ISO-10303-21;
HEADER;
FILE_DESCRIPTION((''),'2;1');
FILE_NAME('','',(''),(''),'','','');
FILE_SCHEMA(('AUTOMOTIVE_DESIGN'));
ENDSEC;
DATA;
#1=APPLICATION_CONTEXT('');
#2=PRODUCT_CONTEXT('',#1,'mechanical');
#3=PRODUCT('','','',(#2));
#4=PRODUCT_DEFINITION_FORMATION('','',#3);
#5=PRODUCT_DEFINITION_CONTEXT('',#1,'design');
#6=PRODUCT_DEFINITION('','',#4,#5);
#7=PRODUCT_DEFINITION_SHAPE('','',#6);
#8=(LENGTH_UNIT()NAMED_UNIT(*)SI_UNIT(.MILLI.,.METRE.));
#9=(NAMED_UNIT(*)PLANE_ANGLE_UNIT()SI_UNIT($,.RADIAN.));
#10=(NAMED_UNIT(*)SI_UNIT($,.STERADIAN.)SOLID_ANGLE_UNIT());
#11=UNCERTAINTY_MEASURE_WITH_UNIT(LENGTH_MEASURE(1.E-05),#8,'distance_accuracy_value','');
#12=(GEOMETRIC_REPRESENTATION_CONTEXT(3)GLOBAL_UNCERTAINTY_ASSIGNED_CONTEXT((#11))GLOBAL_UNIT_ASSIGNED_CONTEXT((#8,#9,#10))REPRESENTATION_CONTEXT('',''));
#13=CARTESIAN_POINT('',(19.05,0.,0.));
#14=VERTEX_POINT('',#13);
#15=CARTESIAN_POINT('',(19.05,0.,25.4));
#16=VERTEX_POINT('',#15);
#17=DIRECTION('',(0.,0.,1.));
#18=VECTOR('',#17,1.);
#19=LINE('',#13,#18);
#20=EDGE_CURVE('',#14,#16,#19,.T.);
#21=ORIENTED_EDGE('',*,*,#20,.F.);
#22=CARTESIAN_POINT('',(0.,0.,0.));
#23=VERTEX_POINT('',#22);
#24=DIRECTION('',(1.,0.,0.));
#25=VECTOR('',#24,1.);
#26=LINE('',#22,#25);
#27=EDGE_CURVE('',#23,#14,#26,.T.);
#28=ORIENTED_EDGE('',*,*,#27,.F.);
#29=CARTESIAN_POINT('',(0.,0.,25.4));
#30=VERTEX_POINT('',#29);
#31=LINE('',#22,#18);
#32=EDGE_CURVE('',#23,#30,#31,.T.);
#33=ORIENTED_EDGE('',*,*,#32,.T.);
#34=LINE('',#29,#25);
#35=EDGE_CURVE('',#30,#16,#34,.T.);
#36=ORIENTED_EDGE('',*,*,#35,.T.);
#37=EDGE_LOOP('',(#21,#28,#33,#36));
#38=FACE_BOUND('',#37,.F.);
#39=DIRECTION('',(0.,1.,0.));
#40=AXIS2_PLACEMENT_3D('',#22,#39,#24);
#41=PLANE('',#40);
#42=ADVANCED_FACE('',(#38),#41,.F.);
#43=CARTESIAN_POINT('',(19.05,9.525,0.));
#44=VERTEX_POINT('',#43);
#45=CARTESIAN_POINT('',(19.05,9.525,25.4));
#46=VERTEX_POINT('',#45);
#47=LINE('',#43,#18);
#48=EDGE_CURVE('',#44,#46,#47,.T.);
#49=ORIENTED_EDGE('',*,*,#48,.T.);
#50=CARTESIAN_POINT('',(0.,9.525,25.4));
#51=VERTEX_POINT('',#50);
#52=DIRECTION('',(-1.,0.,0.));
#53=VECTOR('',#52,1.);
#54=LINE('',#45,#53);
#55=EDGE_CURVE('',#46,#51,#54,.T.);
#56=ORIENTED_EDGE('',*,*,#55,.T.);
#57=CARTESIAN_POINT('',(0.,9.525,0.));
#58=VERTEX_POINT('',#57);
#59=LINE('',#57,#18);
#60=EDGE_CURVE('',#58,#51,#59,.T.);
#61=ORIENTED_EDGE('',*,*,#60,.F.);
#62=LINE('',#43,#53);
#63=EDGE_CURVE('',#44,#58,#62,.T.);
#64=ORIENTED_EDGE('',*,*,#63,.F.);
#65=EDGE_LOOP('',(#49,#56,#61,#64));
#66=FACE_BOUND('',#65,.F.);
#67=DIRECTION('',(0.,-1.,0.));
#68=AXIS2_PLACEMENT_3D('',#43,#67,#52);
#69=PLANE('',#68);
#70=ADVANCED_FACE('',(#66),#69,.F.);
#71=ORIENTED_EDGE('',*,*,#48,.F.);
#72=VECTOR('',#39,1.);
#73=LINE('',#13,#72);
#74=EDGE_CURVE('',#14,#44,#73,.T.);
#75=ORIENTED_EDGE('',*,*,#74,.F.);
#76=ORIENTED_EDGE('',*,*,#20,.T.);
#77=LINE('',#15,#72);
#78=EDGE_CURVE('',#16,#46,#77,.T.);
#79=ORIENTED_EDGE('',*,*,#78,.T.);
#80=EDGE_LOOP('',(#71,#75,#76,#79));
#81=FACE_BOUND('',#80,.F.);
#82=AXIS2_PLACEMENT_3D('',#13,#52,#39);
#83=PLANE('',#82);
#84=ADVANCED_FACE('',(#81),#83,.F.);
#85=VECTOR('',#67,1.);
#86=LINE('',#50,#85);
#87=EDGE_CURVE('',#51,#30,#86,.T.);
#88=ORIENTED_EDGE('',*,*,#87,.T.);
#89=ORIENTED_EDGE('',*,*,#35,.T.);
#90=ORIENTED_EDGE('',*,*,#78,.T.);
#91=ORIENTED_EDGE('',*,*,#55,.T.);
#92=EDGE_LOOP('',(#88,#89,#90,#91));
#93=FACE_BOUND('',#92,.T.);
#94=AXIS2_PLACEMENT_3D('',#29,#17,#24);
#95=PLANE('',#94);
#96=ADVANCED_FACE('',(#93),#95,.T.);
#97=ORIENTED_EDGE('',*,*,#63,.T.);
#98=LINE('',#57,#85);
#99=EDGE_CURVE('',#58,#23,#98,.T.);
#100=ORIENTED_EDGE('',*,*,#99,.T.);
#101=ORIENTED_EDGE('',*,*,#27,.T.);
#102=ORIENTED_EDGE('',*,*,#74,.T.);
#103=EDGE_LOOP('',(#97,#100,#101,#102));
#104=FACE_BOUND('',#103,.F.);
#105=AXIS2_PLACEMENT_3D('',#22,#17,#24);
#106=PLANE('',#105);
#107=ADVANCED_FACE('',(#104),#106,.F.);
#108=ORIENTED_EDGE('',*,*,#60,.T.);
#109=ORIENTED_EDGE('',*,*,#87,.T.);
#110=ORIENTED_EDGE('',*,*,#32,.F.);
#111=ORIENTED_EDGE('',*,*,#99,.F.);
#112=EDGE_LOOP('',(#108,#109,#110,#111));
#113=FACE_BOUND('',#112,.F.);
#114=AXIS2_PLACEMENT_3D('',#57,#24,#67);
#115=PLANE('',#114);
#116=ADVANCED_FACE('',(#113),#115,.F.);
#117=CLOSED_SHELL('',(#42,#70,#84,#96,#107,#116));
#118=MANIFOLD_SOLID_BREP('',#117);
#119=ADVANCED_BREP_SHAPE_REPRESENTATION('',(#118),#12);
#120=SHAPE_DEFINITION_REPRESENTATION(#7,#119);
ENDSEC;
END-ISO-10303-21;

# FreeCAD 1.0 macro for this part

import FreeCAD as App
import Part
import Sketcher
from FreeCAD import Vector
Q = App.Units.Quantity


def add_polygon(sketch, points):
    """Adds a closed chain of lines whose ends are joined by coincident constraints."""
    first, n = sketch.GeometryCount, len(points)
    for a, b in zip(points, points[1:] + points[:1]):
        sketch.addGeometry(Part.LineSegment(App.Vector(*a, 0), App.Vector(*b, 0)), False)
    for i in range(n):
        sketch.addConstraint(Sketcher.Constraint("Coincident", first + i, 2, first + (i + 1) % n, 1))

doc = App.newDocument("Part")
body = doc.addObject("PartDesign::Body", "Body")

sketch1 = doc.addObject("Sketcher::SketchObject", "Sketch")
body.addObject(sketch1)
sketch1.AttachmentSupport = (doc.XY_Plane, [""])
sketch1.MapMode = "FlatFace"
add_polygon(sketch1, [(0, 10), (0, 0), (19, 0), (19, 10)])
sketch1.addConstraint([
    Sketcher.Constraint("Vertical", 0),
    Sketcher.Constraint("Horizontal", 1),
    Sketcher.Constraint("Vertical", 2),
    Sketcher.Constraint("Horizontal", 3),
    Sketcher.Constraint("Coincident", 0, 2, -1, 1),
    Sketcher.Constraint("DistanceX", 1, 1, 1, 2, Q("0.75 in")),
    Sketcher.Constraint("DistanceY", 0, 2, 0, 1, Q("0.375 in")),
])
pad1 = doc.addObject("PartDesign::Pad", "Pad")
body.addObject(pad1)
pad1.Profile = sketch1
pad1.Length = Q("1 in")

doc.recompute()
